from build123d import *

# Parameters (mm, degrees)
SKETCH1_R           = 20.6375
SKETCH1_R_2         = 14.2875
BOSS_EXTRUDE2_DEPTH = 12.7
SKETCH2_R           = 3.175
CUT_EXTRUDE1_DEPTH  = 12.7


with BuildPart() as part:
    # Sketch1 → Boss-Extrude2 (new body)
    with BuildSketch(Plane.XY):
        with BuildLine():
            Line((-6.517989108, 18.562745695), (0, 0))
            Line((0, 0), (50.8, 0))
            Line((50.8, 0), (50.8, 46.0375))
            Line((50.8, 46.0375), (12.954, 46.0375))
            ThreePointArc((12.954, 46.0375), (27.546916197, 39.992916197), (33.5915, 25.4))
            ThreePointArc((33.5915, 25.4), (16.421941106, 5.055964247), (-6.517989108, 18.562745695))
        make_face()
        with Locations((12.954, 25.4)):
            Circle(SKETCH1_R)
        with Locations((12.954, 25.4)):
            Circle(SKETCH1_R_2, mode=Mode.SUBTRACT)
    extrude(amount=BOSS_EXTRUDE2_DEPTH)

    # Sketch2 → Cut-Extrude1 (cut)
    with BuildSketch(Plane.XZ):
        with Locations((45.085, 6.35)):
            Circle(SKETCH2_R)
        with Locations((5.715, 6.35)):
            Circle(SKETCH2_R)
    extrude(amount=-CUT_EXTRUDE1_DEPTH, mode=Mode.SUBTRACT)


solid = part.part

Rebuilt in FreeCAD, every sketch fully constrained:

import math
import FreeCAD as App
import Part
import Sketcher
from FreeCAD import Vector
Q = App.Units.Quantity

doc = App.newDocument("Part")
body = doc.addObject("PartDesign::Body", "Body")

sketch1 = body.newObject("Sketcher::SketchObject", "Sketch")
sketch1.AttachmentSupport = (doc.getObject("XY_Plane"), [""])
sketch1.MapMode = "FlatFace"
sketch1.addGeometry(Part.LineSegment(Vector(-6.517989, 18.562746, 0), Vector(0, 0, 0)), False)
sketch1.addGeometry(Part.LineSegment(Vector(0, 0, 0), Vector(50.8, 0, 0)), False)
sketch1.addGeometry(Part.LineSegment(Vector(50.8, 0, 0), Vector(50.8, 46.0375, 0)), False)
sketch1.addGeometry(Part.LineSegment(Vector(50.8, 46.0375, 0), Vector(12.954, 46.0375, 0)), False)
sketch1.addGeometry(Part.ArcOfCircle(Part.Circle(Vector(12.954, 25.4, 0), Vector(0, 0, 1), 20.6375), math.radians(90), math.radians(199.347848)), False)
sketch1.addGeometry(Part.Circle(Vector(12.954, 25.4, 0), Vector(0, 0, 1), 14.2875), False)
sketch1.addConstraint(Sketcher.Constraint("Coincident", 0, 2, 1, 1))
sketch1.addConstraint(Sketcher.Constraint("Coincident", 1, 2, 2, 1))
sketch1.addConstraint(Sketcher.Constraint("Coincident", 2, 2, 3, 1))
sketch1.addConstraint(Sketcher.Constraint("Tangent", 3, 2, 4, 1))
sketch1.addConstraint(Sketcher.Constraint("Tangent", 4, 2, 0, 1))
sketch1.addConstraint(Sketcher.Constraint("Horizontal", 1))
sketch1.addConstraint(Sketcher.Constraint("Vertical", 2))
sketch1.addConstraint(Sketcher.Constraint("Horizontal", 3))
sketch1.addConstraint(Sketcher.Constraint("Coincident", 0, 2, -1, 1))
sketch1.addConstraint(Sketcher.Constraint("Coincident", 5, 3, 4, 3))
sketch1.addConstraint(Sketcher.Constraint("DistanceX", 1, 1, 1, 2, Q("2 in")))
sketch1.addConstraint(Sketcher.Constraint("Diameter", 5, Q("1.125 in")))
sketch1.addConstraint(Sketcher.Constraint("DistanceY", -1, 1, 4, 3, Q("1 in")))
sketch1.addConstraint(Sketcher.Constraint("Radius", 4, Q("0.8125 in")))
sketch1.addConstraint(Sketcher.Constraint("DistanceX", 3, 2, 3, 1, Q("1.49 in")))
pad1 = body.newObject("PartDesign::Pad", "Pad")
pad1.Profile = sketch1
pad1.Length = Q("0.5 in")

sketch2 = body.newObject("Sketcher::SketchObject", "Sketch001")
sketch2.AttachmentSupport = (doc.getObject("XZ_Plane"), [""])
sketch2.MapMode = "FlatFace"
sketch2.addGeometry(Part.Circle(Vector(45.085, 6.35, 0), Vector(0, 0, 1), 3.175), False)
sketch2.addGeometry(Part.Circle(Vector(5.715, 6.35, 0), Vector(0, 0, 1), 3.175), False)
sketch2.addConstraint(Sketcher.Constraint("Equal", 0, 1))
sketch2.addConstraint(Sketcher.Constraint("Horizontal", 0, 3, 1, 3))
sketch2.addConstraint(Sketcher.Constraint("Diameter", 0, Q("0.25 in")))
sketch2.addConstraint(Sketcher.Constraint("DistanceY", -1, 1, 0, 3, Q("0.25 in")))
sketch2.addConstraint(Sketcher.Constraint("DistanceX", 1, 3, 0, 3, Q("1.55 in")))
sketch2.addConstraint(Sketcher.Constraint("DistanceX", -1, 1, 0, 3, Q("1.775 in")))
pocket1 = body.newObject("PartDesign::Pocket", "Pocket")
pocket1.Profile = sketch2
pocket1.Length = Q("0.5 in")

doc.recompute()
